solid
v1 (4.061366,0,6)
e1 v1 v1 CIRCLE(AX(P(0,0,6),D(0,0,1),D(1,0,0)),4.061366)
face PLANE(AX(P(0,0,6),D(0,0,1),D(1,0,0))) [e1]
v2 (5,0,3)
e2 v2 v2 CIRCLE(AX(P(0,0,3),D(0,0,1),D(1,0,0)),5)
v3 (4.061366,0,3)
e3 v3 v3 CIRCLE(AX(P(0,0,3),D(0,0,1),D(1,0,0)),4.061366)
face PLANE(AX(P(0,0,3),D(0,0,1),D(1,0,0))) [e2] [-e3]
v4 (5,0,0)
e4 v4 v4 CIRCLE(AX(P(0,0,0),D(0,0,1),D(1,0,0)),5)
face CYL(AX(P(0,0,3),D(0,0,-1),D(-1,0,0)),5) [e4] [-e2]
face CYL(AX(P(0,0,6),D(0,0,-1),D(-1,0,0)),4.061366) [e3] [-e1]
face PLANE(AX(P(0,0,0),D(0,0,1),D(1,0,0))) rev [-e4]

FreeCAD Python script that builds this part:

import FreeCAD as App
import Part
import Sketcher

doc = App.newDocument("Part")
body = doc.addObject("PartDesign::Body", "Body")

sketch1 = body.newObject("Sketcher::SketchObject", "Sketch")
sketch1.AttachmentSupport = (doc.getObject("XY_Plane"), [""])
sketch1.MapMode = "FlatFace"
sketch1.addGeometry(Part.Circle(App.Vector(0, 0, 0), App.Vector(0, 0, 1), 5), False)
sketch1.addConstraint([
    Sketcher.Constraint("Coincident", 0, 3, -1, 1),
    Sketcher.Constraint("Diameter", 0, 10.0),
])
pad1 = body.newObject("PartDesign::Pad", "Pad")
pad1.Profile = sketch1
pad1.Length = 3

sketch2 = body.newObject("Sketcher::SketchObject", "Sketch001")
sketch2.AttachmentSupport = (doc.getObject("XY_Plane"), [""])
sketch2.MapMode = "FlatFace"
sketch2.AttachmentOffset = App.Placement(App.Vector(0, 0, 3), App.Rotation())
sketch2.addGeometry(Part.Circle(App.Vector(0, 0, 0), App.Vector(0, 0, 1), 4.061366), False)
sketch2.addConstraint([
    Sketcher.Constraint("Coincident", 0, 3, -1, 1),
    Sketcher.Constraint("Diameter", 0, 8.122732),
])
pad2 = body.newObject("PartDesign::Pad", "Pad001")
pad2.Profile = sketch2
pad2.Length = 3

doc.recompute()
